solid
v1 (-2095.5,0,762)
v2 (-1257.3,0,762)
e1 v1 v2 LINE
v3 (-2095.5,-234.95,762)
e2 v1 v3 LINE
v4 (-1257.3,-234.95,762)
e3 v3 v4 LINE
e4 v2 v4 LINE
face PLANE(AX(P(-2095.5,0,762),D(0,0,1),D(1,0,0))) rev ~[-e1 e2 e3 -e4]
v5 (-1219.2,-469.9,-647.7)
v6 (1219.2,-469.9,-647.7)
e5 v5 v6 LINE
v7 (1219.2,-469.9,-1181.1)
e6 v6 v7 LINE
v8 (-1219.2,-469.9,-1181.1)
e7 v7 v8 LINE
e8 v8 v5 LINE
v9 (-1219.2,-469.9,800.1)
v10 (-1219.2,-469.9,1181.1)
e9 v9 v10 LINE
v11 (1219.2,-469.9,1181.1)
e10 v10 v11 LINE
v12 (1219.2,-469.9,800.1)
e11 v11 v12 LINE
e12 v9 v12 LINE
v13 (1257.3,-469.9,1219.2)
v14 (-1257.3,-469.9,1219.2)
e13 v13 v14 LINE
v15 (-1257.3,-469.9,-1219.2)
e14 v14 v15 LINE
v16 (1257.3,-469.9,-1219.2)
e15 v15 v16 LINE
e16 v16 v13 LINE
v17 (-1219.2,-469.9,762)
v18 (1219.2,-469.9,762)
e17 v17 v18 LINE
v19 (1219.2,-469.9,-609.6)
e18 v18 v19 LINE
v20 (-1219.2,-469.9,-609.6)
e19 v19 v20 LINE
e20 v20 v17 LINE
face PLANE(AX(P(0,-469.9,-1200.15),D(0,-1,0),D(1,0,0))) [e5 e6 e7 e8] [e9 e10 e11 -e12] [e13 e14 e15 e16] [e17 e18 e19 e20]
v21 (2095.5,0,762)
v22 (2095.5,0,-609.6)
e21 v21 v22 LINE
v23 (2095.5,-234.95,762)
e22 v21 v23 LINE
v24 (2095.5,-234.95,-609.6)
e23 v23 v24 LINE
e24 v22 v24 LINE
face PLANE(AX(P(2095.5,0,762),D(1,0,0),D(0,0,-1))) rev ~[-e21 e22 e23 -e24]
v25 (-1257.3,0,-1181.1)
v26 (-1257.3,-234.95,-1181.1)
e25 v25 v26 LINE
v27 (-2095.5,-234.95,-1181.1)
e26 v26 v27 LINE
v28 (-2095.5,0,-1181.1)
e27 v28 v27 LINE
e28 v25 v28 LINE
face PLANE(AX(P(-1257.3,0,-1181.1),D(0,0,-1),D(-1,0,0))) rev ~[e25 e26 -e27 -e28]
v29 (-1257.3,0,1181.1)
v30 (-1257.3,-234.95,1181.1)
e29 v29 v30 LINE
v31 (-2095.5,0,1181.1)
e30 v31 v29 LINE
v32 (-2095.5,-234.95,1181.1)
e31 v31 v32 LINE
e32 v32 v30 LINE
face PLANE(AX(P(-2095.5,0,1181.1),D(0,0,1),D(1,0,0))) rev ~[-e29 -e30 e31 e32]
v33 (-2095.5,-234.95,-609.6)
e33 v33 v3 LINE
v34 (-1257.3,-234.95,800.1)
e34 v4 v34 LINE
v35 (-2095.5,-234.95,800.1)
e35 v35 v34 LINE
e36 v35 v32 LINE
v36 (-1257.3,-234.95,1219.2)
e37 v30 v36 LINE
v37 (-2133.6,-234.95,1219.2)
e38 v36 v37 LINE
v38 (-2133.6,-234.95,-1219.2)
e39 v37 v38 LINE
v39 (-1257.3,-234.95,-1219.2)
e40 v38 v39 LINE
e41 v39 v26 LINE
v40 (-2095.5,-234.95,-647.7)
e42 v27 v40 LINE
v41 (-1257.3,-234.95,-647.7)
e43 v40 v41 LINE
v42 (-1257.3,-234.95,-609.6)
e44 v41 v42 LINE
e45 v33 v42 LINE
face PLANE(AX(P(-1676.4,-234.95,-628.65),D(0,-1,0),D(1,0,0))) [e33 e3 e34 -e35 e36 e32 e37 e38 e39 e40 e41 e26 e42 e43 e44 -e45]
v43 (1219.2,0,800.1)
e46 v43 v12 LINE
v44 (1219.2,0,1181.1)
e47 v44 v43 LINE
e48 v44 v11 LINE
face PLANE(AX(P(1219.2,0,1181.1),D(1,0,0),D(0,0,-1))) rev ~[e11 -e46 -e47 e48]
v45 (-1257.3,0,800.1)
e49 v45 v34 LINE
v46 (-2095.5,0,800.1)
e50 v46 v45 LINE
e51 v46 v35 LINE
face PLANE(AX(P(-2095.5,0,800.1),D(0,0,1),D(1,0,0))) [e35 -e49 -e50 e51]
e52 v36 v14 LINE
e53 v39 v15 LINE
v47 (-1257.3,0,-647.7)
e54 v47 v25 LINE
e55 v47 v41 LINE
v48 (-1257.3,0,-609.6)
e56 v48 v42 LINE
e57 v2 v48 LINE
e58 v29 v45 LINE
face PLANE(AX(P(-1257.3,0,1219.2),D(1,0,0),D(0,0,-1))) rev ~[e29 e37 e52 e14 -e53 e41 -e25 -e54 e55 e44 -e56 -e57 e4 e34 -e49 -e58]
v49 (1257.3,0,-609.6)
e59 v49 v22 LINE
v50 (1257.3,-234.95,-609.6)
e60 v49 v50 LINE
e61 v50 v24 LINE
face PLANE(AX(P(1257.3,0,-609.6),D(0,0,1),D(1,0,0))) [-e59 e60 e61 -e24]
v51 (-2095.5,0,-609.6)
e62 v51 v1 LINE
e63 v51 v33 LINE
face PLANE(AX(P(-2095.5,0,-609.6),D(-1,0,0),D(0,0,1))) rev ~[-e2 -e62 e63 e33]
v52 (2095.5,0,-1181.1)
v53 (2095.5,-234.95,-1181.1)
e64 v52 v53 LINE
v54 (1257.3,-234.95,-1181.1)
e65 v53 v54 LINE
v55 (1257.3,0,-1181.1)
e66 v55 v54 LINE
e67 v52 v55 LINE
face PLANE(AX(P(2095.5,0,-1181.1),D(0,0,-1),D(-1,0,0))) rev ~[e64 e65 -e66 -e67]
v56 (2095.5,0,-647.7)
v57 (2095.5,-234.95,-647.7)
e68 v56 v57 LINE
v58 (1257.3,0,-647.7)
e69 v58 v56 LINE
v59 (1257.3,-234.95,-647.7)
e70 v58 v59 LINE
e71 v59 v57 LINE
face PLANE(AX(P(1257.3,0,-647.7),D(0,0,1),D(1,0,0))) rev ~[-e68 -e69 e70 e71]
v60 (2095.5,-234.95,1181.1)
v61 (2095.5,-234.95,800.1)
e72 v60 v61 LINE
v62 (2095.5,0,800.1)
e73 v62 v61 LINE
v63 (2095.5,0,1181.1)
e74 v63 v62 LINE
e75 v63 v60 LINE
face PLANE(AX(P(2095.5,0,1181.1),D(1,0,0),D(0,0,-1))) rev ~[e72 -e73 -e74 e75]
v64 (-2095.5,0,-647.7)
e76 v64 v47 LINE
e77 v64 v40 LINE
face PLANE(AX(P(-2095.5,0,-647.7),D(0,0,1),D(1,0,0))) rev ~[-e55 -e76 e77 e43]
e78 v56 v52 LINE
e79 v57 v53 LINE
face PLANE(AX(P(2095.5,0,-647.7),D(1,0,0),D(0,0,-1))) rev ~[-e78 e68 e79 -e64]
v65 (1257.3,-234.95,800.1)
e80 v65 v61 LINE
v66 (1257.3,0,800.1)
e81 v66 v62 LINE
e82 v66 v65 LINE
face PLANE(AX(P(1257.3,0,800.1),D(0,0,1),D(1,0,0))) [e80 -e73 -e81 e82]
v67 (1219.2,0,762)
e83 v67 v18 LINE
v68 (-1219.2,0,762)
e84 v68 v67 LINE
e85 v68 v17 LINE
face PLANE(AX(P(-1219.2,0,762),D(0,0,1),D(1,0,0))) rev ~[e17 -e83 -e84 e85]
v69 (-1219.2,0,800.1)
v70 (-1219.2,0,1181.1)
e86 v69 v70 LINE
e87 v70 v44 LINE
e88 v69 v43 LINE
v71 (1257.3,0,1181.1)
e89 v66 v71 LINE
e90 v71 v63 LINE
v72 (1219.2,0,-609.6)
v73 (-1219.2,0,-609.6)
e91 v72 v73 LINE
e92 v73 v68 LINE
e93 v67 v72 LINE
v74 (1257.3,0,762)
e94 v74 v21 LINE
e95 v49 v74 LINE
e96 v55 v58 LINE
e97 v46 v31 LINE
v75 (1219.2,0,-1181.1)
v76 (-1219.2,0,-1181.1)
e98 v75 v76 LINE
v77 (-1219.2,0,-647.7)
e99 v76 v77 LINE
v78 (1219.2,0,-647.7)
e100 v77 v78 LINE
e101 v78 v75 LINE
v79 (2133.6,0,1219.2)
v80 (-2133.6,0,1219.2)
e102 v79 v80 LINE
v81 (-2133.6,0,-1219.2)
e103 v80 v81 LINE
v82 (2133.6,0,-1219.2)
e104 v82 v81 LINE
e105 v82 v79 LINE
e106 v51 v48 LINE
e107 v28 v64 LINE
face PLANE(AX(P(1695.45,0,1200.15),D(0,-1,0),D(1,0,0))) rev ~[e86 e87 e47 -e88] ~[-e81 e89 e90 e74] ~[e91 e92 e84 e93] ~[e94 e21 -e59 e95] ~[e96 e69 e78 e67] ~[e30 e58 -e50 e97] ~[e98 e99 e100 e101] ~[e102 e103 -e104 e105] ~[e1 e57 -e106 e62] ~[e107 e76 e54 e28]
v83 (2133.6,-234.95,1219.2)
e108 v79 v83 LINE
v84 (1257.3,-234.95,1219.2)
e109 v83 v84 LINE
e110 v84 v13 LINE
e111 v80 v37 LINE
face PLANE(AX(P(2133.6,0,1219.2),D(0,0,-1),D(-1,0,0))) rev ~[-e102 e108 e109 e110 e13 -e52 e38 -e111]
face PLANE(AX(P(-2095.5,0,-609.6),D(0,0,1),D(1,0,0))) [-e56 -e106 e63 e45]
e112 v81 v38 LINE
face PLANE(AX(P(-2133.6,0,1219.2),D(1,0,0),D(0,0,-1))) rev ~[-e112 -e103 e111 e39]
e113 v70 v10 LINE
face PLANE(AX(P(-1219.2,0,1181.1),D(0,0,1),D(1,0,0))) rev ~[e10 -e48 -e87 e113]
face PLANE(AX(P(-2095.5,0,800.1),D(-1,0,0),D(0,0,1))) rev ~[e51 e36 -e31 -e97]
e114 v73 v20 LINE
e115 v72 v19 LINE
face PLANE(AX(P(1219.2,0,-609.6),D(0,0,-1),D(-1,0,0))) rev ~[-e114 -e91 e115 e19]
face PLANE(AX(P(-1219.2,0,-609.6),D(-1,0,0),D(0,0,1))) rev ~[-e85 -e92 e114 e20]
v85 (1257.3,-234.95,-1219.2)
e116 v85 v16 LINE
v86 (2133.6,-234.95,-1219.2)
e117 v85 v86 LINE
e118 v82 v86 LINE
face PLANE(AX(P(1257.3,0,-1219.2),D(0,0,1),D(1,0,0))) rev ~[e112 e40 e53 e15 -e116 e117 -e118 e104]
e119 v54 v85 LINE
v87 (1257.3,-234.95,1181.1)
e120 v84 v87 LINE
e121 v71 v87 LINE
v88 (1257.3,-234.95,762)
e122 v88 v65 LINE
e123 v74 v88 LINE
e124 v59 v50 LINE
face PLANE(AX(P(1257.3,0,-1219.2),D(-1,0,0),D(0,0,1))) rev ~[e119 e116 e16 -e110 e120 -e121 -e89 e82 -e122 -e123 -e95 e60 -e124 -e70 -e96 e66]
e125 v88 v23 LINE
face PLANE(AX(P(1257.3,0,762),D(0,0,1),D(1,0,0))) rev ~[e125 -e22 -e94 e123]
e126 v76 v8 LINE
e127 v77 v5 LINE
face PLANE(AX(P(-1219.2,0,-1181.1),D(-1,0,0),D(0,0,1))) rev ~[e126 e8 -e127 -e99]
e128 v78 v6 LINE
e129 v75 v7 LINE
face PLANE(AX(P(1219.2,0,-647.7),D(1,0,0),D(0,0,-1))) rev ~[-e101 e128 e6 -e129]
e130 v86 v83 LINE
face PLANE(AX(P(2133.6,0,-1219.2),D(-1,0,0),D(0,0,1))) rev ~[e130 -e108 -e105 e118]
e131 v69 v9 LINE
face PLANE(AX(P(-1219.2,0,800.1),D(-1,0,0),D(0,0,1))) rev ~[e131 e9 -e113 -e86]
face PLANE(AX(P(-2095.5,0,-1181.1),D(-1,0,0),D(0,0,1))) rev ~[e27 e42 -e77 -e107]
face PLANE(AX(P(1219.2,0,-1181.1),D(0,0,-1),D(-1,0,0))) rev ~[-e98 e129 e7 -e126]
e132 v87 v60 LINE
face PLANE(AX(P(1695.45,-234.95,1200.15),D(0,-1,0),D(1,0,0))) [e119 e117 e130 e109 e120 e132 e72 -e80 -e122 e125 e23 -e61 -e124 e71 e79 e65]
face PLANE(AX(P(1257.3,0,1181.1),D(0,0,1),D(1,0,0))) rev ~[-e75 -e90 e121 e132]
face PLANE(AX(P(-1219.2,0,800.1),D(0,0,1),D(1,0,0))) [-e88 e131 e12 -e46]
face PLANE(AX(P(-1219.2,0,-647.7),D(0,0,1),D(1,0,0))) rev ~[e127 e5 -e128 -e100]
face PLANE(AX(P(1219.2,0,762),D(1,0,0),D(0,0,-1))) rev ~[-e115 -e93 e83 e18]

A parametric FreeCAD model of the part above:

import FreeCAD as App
import Part
import Sketcher
from FreeCAD import Vector
Q = App.Units.Quantity

doc = App.newDocument("Part")
body = doc.addObject("PartDesign::Body", "Body")

# Sketch on XZ plane
sketch1 = doc.addObject("Sketcher::SketchObject", "Sketch")
body.addObject(sketch1)
sketch1.AttachmentSupport = (doc.XZ_Plane, [""])
sketch1.MapMode = "FlatFace"
sketch1.addGeometry([
    Part.LineSegment(Vector(1257, -1219, 0), Vector(1257, 1219, 0)),  # 0
    Part.LineSegment(Vector(1257, 1219, 0), Vector(-1257, 1219, 0)),  # 1
    Part.LineSegment(Vector(-1257, 1219, 0), Vector(-1257, -1219, 0)),  # 2
    Part.LineSegment(Vector(-1257, -1219, 0), Vector(1257, -1219, 0)),  # 3
    Part.LineSegment(Vector(1219, 1181, 0), Vector(1219, 800, 0)),  # 4
    Part.LineSegment(Vector(1219, 800, 0), Vector(-1219, 800, 0)),  # 5
    Part.LineSegment(Vector(-1219, 800, 0), Vector(-1219, 1181, 0)),  # 6
    Part.LineSegment(Vector(-1219, 1181, 0), Vector(1219, 1181, 0)),  # 7
    Part.LineSegment(Vector(1219, 762, 0), Vector(1219, -610, 0)),  # 8
    Part.LineSegment(Vector(1219, -610, 0), Vector(-1219, -610, 0)),  # 9
    Part.LineSegment(Vector(-1219, -610, 0), Vector(-1219, 762, 0)),  # 10
    Part.LineSegment(Vector(-1219, 762, 0), Vector(1219, 762, 0)),  # 11
    Part.LineSegment(Vector(-1219, -648, 0), Vector(1219, -648, 0)),  # 12
    Part.LineSegment(Vector(1219, -648, 0), Vector(1219, -1181, 0)),  # 13
    Part.LineSegment(Vector(1219, -1181, 0), Vector(-1219, -1181, 0)),  # 14
    Part.LineSegment(Vector(-1219, -1181, 0), Vector(-1219, -648, 0)),  # 15
], False)
sketch1.addConstraint([
    Sketcher.Constraint("Coincident", 0, 2, 1, 1),
    Sketcher.Constraint("Coincident", 1, 2, 2, 1),
    Sketcher.Constraint("Coincident", 2, 2, 3, 1),
    Sketcher.Constraint("Coincident", 3, 2, 0, 1),
    Sketcher.Constraint("Coincident", 4, 2, 5, 1),
    Sketcher.Constraint("Coincident", 5, 2, 6, 1),
    Sketcher.Constraint("Coincident", 6, 2, 7, 1),
    Sketcher.Constraint("Coincident", 7, 2, 4, 1),
    Sketcher.Constraint("Coincident", 8, 2, 9, 1),
    Sketcher.Constraint("Coincident", 9, 2, 10, 1),
    Sketcher.Constraint("Coincident", 10, 2, 11, 1),
    Sketcher.Constraint("Coincident", 11, 2, 8, 1),
    Sketcher.Constraint("Coincident", 12, 2, 13, 1),
    Sketcher.Constraint("Coincident", 13, 2, 14, 1),
    Sketcher.Constraint("Coincident", 14, 2, 15, 1),
    Sketcher.Constraint("Coincident", 15, 2, 12, 1),
    Sketcher.Constraint("Vertical", 0),
    Sketcher.Constraint("Horizontal", 1),
    Sketcher.Constraint("Vertical", 2),
    Sketcher.Constraint("Horizontal", 3),
    Sketcher.Constraint("Vertical", 4),
    Sketcher.Constraint("Horizontal", 5),
    Sketcher.Constraint("Vertical", 6),
    Sketcher.Constraint("Horizontal", 7),
    Sketcher.Constraint("Vertical", 8),
    Sketcher.Constraint("Horizontal", 9),
    Sketcher.Constraint("Vertical", 10),
    Sketcher.Constraint("Horizontal", 11),
    Sketcher.Constraint("Horizontal", 12),
    Sketcher.Constraint("Vertical", 13),
    Sketcher.Constraint("Horizontal", 14),
    Sketcher.Constraint("Vertical", 15),
    Sketcher.Constraint("Symmetric", 0, 2, 2, 2, -1, 1),
    Sketcher.Constraint("Symmetric", 6, 2, 13, 2, -1, 1),
    Sketcher.Constraint("Vertical", 7, 2, 8, 2),
    Sketcher.Constraint("Vertical", 6, 2, 9, 2),
    Sketcher.Constraint("Vertical", 11, 2, 12, 2),
    Sketcher.Constraint("Vertical", 10, 2, 14, 2),
    Sketcher.Constraint("Equal", 14, 0),
    Sketcher.Constraint("DistanceX", 1, 2, 1, 1, Q("99 in")),
    Sketcher.Constraint("DistanceX", 5, 2, 5, 1, Q("96 in")),
    Sketcher.Constraint("DistanceY", 4, 2, 4, 1, Q("15 in")),
    Sketcher.Constraint("DistanceY", 8, 2, 8, 1, Q("54 in")),
    Sketcher.Constraint("DistanceY", 13, 2, 13, 1, Q("21 in")),
    Sketcher.Constraint("DistanceY", 8, 2, -1, 1, Q("24 in")),
    Sketcher.Constraint("DistanceY", 12, 2, 4, 2, Q("57 in")),
])
pad1 = doc.addObject("PartDesign::Pad", "Pad")
body.addObject(pad1)
pad1.Profile = sketch1
pad1.Length = Q("18.5 in")

# Sketch on XZ plane
sketch2 = doc.addObject("Sketcher::SketchObject", "Sketch001")
body.addObject(sketch2)
sketch2.AttachmentSupport = (doc.XZ_Plane, [""])
sketch2.MapMode = "FlatFace"
sketch2.addGeometry([
    Part.LineSegment(Vector(2134, 1219, 0), Vector(1257, 1219, 0)),  # 0
    Part.LineSegment(Vector(1257, 1219, 0), Vector(1257, 1181, 0)),  # 1
    Part.LineSegment(Vector(1257, 1181, 0), Vector(2096, 1181, 0)),  # 2
    Part.LineSegment(Vector(2096, 1181, 0), Vector(2096, 800, 0)),  # 3
    Part.LineSegment(Vector(2096, 800, 0), Vector(1257, 800, 0)),  # 4
    Part.LineSegment(Vector(1257, 800, 0), Vector(1257, 762, 0)),  # 5
    Part.LineSegment(Vector(1257, 762, 0), Vector(2096, 762, 0)),  # 6
    Part.LineSegment(Vector(2096, 762, 0), Vector(2096, -610, 0)),  # 7
    Part.LineSegment(Vector(2096, -610, 0), Vector(1257, -610, 0)),  # 8
    Part.LineSegment(Vector(1257, -610, 0), Vector(1257, -648, 0)),  # 9
    Part.LineSegment(Vector(1257, -648, 0), Vector(2096, -648, 0)),  # 10
    Part.LineSegment(Vector(2096, -648, 0), Vector(2096, -1181, 0)),  # 11
    Part.LineSegment(Vector(2096, -1181, 0), Vector(1257, -1181, 0)),  # 12
    Part.LineSegment(Vector(1257, -1181, 0), Vector(1257, -1219, 0)),  # 13
    Part.LineSegment(Vector(1257, -1219, 0), Vector(2134, -1219, 0)),  # 14
    Part.LineSegment(Vector(2134, -1219, 0), Vector(2134, 1219, 0)),  # 15
    Part.LineSegment(Vector(-2096, -648, 0), Vector(-1257, -648, 0)),  # 16
    Part.LineSegment(Vector(-1257, -648, 0), Vector(-1257, -610, 0)),  # 17
    Part.LineSegment(Vector(-1257, -610, 0), Vector(-2096, -610, 0)),  # 18
    Part.LineSegment(Vector(-2096, -610, 0), Vector(-2096, 762, 0)),  # 19
    Part.LineSegment(Vector(-2096, 762, 0), Vector(-1257, 762, 0)),  # 20
    Part.LineSegment(Vector(-1257, 762, 0), Vector(-1257, 800, 0)),  # 21
    Part.LineSegment(Vector(-1257, 800, 0), Vector(-2096, 800, 0)),  # 22
    Part.LineSegment(Vector(-2096, 800, 0), Vector(-2096, 1181, 0)),  # 23
    Part.LineSegment(Vector(-2096, 1181, 0), Vector(-1257, 1181, 0)),  # 24
    Part.LineSegment(Vector(-1257, 1181, 0), Vector(-1257, 1219, 0)),  # 25
    Part.LineSegment(Vector(-1257, 1219, 0), Vector(-2134, 1219, 0)),  # 26
    Part.LineSegment(Vector(-2134, 1219, 0), Vector(-2134, -1219, 0)),  # 27
    Part.LineSegment(Vector(-2134, -1219, 0), Vector(-1257, -1219, 0)),  # 28
    Part.LineSegment(Vector(-1257, -1219, 0), Vector(-1257, -1181, 0)),  # 29
    Part.LineSegment(Vector(-1257, -1181, 0), Vector(-2096, -1181, 0)),  # 30
    Part.LineSegment(Vector(-2096, -1181, 0), Vector(-2096, -648, 0)),  # 31
], False)
sketch2.addConstraint([
    Sketcher.Constraint("Coincident", 0, 2, 1, 1),
    Sketcher.Constraint("Coincident", 1, 2, 2, 1),
    Sketcher.Constraint("Coincident", 2, 2, 3, 1),
    Sketcher.Constraint("Coincident", 3, 2, 4, 1),
    Sketcher.Constraint("Coincident", 4, 2, 5, 1),
    Sketcher.Constraint("Coincident", 5, 2, 6, 1),
    Sketcher.Constraint("Coincident", 6, 2, 7, 1),
    Sketcher.Constraint("Coincident", 7, 2, 8, 1),
    Sketcher.Constraint("Coincident", 8, 2, 9, 1),
    Sketcher.Constraint("Coincident", 9, 2, 10, 1),
    Sketcher.Constraint("Coincident", 10, 2, 11, 1),
    Sketcher.Constraint("Coincident", 11, 2, 12, 1),
    Sketcher.Constraint("Coincident", 12, 2, 13, 1),
    Sketcher.Constraint("Coincident", 13, 2, 14, 1),
    Sketcher.Constraint("Coincident", 14, 2, 15, 1),
    Sketcher.Constraint("Coincident", 15, 2, 0, 1),
    Sketcher.Constraint("Coincident", 16, 2, 17, 1),
    Sketcher.Constraint("Coincident", 17, 2, 18, 1),
    Sketcher.Constraint("Coincident", 18, 2, 19, 1),
    Sketcher.Constraint("Coincident", 19, 2, 20, 1),
    Sketcher.Constraint("Coincident", 20, 2, 21, 1),
    Sketcher.Constraint("Coincident", 21, 2, 22, 1),
    Sketcher.Constraint("Coincident", 22, 2, 23, 1),
    Sketcher.Constraint("Coincident", 23, 2, 24, 1),
    Sketcher.Constraint("Coincident", 24, 2, 25, 1),
    Sketcher.Constraint("Coincident", 25, 2, 26, 1),
    Sketcher.Constraint("Coincident", 26, 2, 27, 1),
    Sketcher.Constraint("Coincident", 27, 2, 28, 1),
    Sketcher.Constraint("Coincident", 28, 2, 29, 1),
    Sketcher.Constraint("Coincident", 29, 2, 30, 1),
    Sketcher.Constraint("Coincident", 30, 2, 31, 1),
    Sketcher.Constraint("Coincident", 31, 2, 16, 1),
    Sketcher.Constraint("Horizontal", 0),
    Sketcher.Constraint("Vertical", 1),
    Sketcher.Constraint("Horizontal", 2),
    Sketcher.Constraint("Vertical", 3),
    Sketcher.Constraint("Horizontal", 4),
    Sketcher.Constraint("Vertical", 5),
    Sketcher.Constraint("Horizontal", 6),
    Sketcher.Constraint("Vertical", 7),
    Sketcher.Constraint("Horizontal", 8),
    Sketcher.Constraint("Vertical", 9),
    Sketcher.Constraint("Horizontal", 10),
    Sketcher.Constraint("Vertical", 11),
    Sketcher.Constraint("Horizontal", 12),
    Sketcher.Constraint("Vertical", 13),
    Sketcher.Constraint("Horizontal", 14),
    Sketcher.Constraint("Vertical", 15),
    Sketcher.Constraint("Horizontal", 16),
    Sketcher.Constraint("Vertical", 17),
    Sketcher.Constraint("Horizontal", 18),
    Sketcher.Constraint("Vertical", 19),
    Sketcher.Constraint("Horizontal", 20),
    Sketcher.Constraint("Vertical", 21),
    Sketcher.Constraint("Horizontal", 22),
    Sketcher.Constraint("Vertical", 23),
    Sketcher.Constraint("Horizontal", 24),
    Sketcher.Constraint("Vertical", 25),
    Sketcher.Constraint("Horizontal", 26),
    Sketcher.Constraint("Vertical", 27),
    Sketcher.Constraint("Horizontal", 28),
    Sketcher.Constraint("Vertical", 29),
    Sketcher.Constraint("Horizontal", 30),
    Sketcher.Constraint("Vertical", 31),
    Sketcher.Constraint("Symmetric", 11, 2, 23, 2, -1, 1),
    Sketcher.Constraint("Symmetric", 13, 2, 25, 2, -1, 1),
    Sketcher.Constraint("Symmetric", 15, 2, 27, 2, -1, 1),
    Sketcher.Constraint("Symmetric", 1, 2, 29, 2, -1, 1),
    Sketcher.Constraint("Symmetric", 9, 2, 16, 2, -2),
    Sketcher.Constraint("Symmetric", 7, 2, 18, 2, -2),
    Sketcher.Constraint("Symmetric", 5, 2, 20, 2, -2),
    Sketcher.Constraint("Symmetric", 3, 2, 22, 2, -2),
    Sketcher.Constraint("Symmetric", 1, 2, 24, 2, -2),
    Sketcher.Constraint("Horizontal", 15, 2, 25, 2),
    Sketcher.Constraint("Vertical", 1, 2, 4, 2),
    Sketcher.Constraint("Vertical", 3, 2, 6, 2),
    Sketcher.Constraint("Vertical", 5, 2, 8, 2),
    Sketcher.Constraint("Vertical", 23, 2, 30, 2),
    Sketcher.Constraint("Equal", 1, 5),
    Sketcher.Constraint("Equal", 5, 9),
    Sketcher.Constraint("DistanceX", 2, 1, 2, 2, Q("33 in")),
    Sketcher.Constraint("DistanceY", 3, 2, 3, 1, Q("15 in")),
    Sketcher.Constraint("DistanceY", 7, 2, 7, 1, Q("54 in")),
    Sketcher.Constraint("DistanceY", 11, 2, 11, 1, Q("21 in")),
    Sketcher.Constraint("DistanceY", 15, 1, 15, 2, Q("96 in")),
    Sketcher.Constraint("DistanceX", 0, 2, 0, 1, Q("34.5 in")),
    Sketcher.Constraint("DistanceX", -1, 1, 14, 2, Q("84 in")),
])
pad2 = doc.addObject("PartDesign::Pad", "Pad001")
body.addObject(pad2)
pad2.Profile = sketch2
pad2.Length = Q("9.25 in")

doc.recompute()
